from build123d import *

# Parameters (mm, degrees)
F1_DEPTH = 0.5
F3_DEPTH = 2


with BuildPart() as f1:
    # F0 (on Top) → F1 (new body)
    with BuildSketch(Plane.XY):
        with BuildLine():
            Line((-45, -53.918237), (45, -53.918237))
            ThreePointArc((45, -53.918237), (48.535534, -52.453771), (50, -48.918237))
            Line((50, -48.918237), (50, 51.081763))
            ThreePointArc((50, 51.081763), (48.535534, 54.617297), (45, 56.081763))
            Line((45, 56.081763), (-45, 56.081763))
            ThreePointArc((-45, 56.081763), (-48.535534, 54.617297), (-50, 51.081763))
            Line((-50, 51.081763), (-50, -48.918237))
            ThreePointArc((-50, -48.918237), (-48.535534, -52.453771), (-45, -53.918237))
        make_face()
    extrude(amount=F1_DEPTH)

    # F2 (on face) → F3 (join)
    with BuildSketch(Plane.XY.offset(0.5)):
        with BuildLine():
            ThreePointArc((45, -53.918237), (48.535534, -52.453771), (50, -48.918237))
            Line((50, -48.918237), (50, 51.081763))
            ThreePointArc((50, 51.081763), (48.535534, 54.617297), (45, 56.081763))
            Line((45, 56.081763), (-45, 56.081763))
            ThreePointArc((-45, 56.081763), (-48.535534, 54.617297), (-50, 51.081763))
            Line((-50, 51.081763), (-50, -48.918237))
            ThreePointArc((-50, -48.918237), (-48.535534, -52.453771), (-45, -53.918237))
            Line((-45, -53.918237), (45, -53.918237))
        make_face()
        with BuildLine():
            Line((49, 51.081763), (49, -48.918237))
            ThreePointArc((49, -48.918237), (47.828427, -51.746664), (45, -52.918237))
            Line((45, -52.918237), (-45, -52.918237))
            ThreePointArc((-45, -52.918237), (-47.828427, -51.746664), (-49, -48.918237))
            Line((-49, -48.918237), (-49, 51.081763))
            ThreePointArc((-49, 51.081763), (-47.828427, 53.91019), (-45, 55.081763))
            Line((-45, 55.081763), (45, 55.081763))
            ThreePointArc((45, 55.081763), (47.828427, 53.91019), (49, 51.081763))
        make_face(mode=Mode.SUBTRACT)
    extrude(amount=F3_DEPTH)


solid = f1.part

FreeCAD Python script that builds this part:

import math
import FreeCAD as App
import Part
import Sketcher

V = App.Vector
Q = App.Units.Quantity

doc = App.newDocument("Part")
body = doc.addObject("PartDesign::Body", "Body")

# Sketch on XY plane
sketch1 = body.newObject("Sketcher::SketchObject", "Sketch")
sketch1.AttachmentSupport = (doc.getObject("XY_Plane"), [""])
sketch1.MapMode = "FlatFace"
sketch1.addGeometry(Part.LineSegment(V(-45, -53.918237, 0), V(45, -53.918237, 0)), False)
sketch1.addGeometry(Part.ArcOfCircle(Part.Circle(V(45, -48.918237, 0), V(0, 0, 1), 5), math.radians(-90.000004), math.radians(0.000004)), False)
sketch1.addGeometry(Part.LineSegment(V(50, -48.918237, 0), V(50, 51.081763, 0)), False)
sketch1.addGeometry(Part.ArcOfCircle(Part.Circle(V(45, 51.081763, 0), V(0, 0, 1), 5), math.radians(-0.000004), math.radians(90.000004)), False)
sketch1.addGeometry(Part.LineSegment(V(45, 56.081763, 0), V(-45, 56.081763, 0)), False)
sketch1.addGeometry(Part.ArcOfCircle(Part.Circle(V(-45, 51.081763, 0), V(0, 0, 1), 5), math.radians(89.999996), math.radians(180.000004)), False)
sketch1.addGeometry(Part.LineSegment(V(-50, 51.081763, 0), V(-50, -48.918237, 0)), False)
sketch1.addGeometry(Part.ArcOfCircle(Part.Circle(V(-45, -48.918237, 0), V(0, 0, 1), 5), math.radians(179.999996), math.radians(270.000004)), False)
sketch1.addConstraint(Sketcher.Constraint("Tangent", 0, 2, 1, 1))
sketch1.addConstraint(Sketcher.Constraint("Tangent", 1, 2, 2, 1))
sketch1.addConstraint(Sketcher.Constraint("Tangent", 2, 2, 3, 1))
sketch1.addConstraint(Sketcher.Constraint("Tangent", 3, 2, 4, 1))
sketch1.addConstraint(Sketcher.Constraint("Tangent", 4, 2, 5, 1))
sketch1.addConstraint(Sketcher.Constraint("Tangent", 5, 2, 6, 1))
sketch1.addConstraint(Sketcher.Constraint("Tangent", 6, 2, 7, 1))
sketch1.addConstraint(Sketcher.Constraint("Tangent", 7, 2, 0, 1))
sketch1.addConstraint(Sketcher.Constraint("Horizontal", 0))
sketch1.addConstraint(Sketcher.Constraint("Vertical", 2))
sketch1.addConstraint(Sketcher.Constraint("Horizontal", 4))
sketch1.addConstraint(Sketcher.Constraint("Vertical", 6))
sketch1.addConstraint(Sketcher.Constraint("Equal", 1, 3))
sketch1.addConstraint(Sketcher.Constraint("Equal", 3, 5))
sketch1.addConstraint(Sketcher.Constraint("Equal", 5, 7))
sketch1.addConstraint(Sketcher.Constraint("Radius", 1, Q("5 mm")))
sketch1.addConstraint(Sketcher.Constraint("DistanceX", 0, 1, 0, 2, Q("90 mm")))
sketch1.addConstraint(Sketcher.Constraint("DistanceY", 2, 1, 2, 2, Q("100 mm")))
sketch1.addConstraint(Sketcher.Constraint("DistanceX", -1, 1, 1, 3, Q("45 mm")))
sketch1.addConstraint(Sketcher.Constraint("DistanceY", 1, 3, -1, 1, Q("48.918237 mm")))
pad1 = body.newObject("PartDesign::Pad", "Pad")
pad1.Profile = sketch1
pad1.Length = 0.5

# Sketch on XY plane
sketch2 = body.newObject("Sketcher::SketchObject", "Sketch001")
sketch2.AttachmentSupport = (doc.getObject("XY_Plane"), [""])
sketch2.MapMode = "FlatFace"
sketch2.AttachmentOffset = App.Placement(V(0, 0, 0.5), App.Rotation())
sketch2.addGeometry(Part.ArcOfCircle(Part.Circle(V(45, -48.918237, 0), V(0, 0, 1), 5), math.radians(-90.000004), math.radians(0.000004)), False)
sketch2.addGeometry(Part.LineSegment(V(50, -48.918237, 0), V(50, 51.081763, 0)), False)
sketch2.addGeometry(Part.ArcOfCircle(Part.Circle(V(45, 51.081763, 0), V(0, 0, 1), 5), math.radians(-0.000004), math.radians(90.000004)), False)
sketch2.addGeometry(Part.LineSegment(V(45, 56.081763, 0), V(-45, 56.081763, 0)), False)
sketch2.addGeometry(Part.ArcOfCircle(Part.Circle(V(-45, 51.081763, 0), V(0, 0, 1), 5), math.radians(89.999996), math.radians(180.000004)), False)
sketch2.addGeometry(Part.LineSegment(V(-50, 51.081763, 0), V(-50, -48.918237, 0)), False)
sketch2.addGeometry(Part.ArcOfCircle(Part.Circle(V(-45, -48.918237, 0), V(0, 0, 1), 5), math.radians(179.999996), math.radians(270.000004)), False)
sketch2.addGeometry(Part.LineSegment(V(-45, -53.918237, 0), V(45, -53.918237, 0)), False)
sketch2.addGeometry(Part.ArcOfCircle(Part.Circle(V(45, 51.081763, 0), V(0, 0, 1), 4), math.radians(0.000006), math.radians(89.999994)), False)
sketch2.addGeometry(Part.LineSegment(V(49, 51.081763, 0), V(49, -48.918237, 0)), False)
sketch2.addGeometry(Part.ArcOfCircle(Part.Circle(V(45, -48.918237, 0), V(0, 0, 1), 4), math.radians(-89.999994), math.radians(-0.000006)), False)
sketch2.addGeometry(Part.LineSegment(V(45, -52.918237, 0), V(-45, -52.918237, 0)), False)
sketch2.addGeometry(Part.ArcOfCircle(Part.Circle(V(-45, -48.918237, 0), V(0, 0, 1), 4), math.radians(-179.999994), math.radians(-90.000006)), False)
sketch2.addGeometry(Part.LineSegment(V(-49, -48.918237, 0), V(-49, 51.081763, 0)), False)
sketch2.addGeometry(Part.ArcOfCircle(Part.Circle(V(-45, 51.081763, 0), V(0, 0, 1), 4), math.radians(90.000006), math.radians(179.999994)), False)
sketch2.addGeometry(Part.LineSegment(V(-45, 55.081763, 0), V(45, 55.081763, 0)), False)
sketch2.addConstraint(Sketcher.Constraint("Tangent", 0, 2, 1, 1))
sketch2.addConstraint(Sketcher.Constraint("Tangent", 1, 2, 2, 1))
sketch2.addConstraint(Sketcher.Constraint("Tangent", 2, 2, 3, 1))
sketch2.addConstraint(Sketcher.Constraint("Tangent", 3, 2, 4, 1))
sketch2.addConstraint(Sketcher.Constraint("Tangent", 4, 2, 5, 1))
sketch2.addConstraint(Sketcher.Constraint("Tangent", 5, 2, 6, 1))
sketch2.addConstraint(Sketcher.Constraint("Tangent", 6, 2, 7, 1))
sketch2.addConstraint(Sketcher.Constraint("Tangent", 7, 2, 0, 1))
sketch2.addConstraint(Sketcher.Constraint("Tangent", 8, 1, 9, 1))
sketch2.addConstraint(Sketcher.Constraint("Tangent", 9, 2, 10, 2))
sketch2.addConstraint(Sketcher.Constraint("Tangent", 10, 1, 11, 1))
sketch2.addConstraint(Sketcher.Constraint("Tangent", 11, 2, 12, 2))
sketch2.addConstraint(Sketcher.Constraint("Tangent", 12, 1, 13, 1))
sketch2.addConstraint(Sketcher.Constraint("Tangent", 13, 2, 14, 2))
sketch2.addConstraint(Sketcher.Constraint("Tangent", 14, 1, 15, 1))
sketch2.addConstraint(Sketcher.Constraint("Tangent", 15, 2, 8, 2))
sketch2.addConstraint(Sketcher.Constraint("Vertical", 1))
sketch2.addConstraint(Sketcher.Constraint("Horizontal", 3))
sketch2.addConstraint(Sketcher.Constraint("Vertical", 5))
sketch2.addConstraint(Sketcher.Constraint("Horizontal", 7))
sketch2.addConstraint(Sketcher.Constraint("Vertical", 9))
sketch2.addConstraint(Sketcher.Constraint("Horizontal", 11))
sketch2.addConstraint(Sketcher.Constraint("Vertical", 13))
sketch2.addConstraint(Sketcher.Constraint("Horizontal", 15))
sketch2.addConstraint(Sketcher.Constraint("Coincident", 8, 3, 2, 3))
sketch2.addConstraint(Sketcher.Constraint("Coincident", 10, 3, 0, 3))
sketch2.addConstraint(Sketcher.Constraint("Coincident", 12, 3, 6, 3))
sketch2.addConstraint(Sketcher.Constraint("Equal", 0, 2))
sketch2.addConstraint(Sketcher.Constraint("Equal", 2, 4))
sketch2.addConstraint(Sketcher.Constraint("Equal", 4, 6))
sketch2.addConstraint(Sketcher.Constraint("Equal", 12, 14))
sketch2.addConstraint(Sketcher.Constraint("Radius", 0, Q("5 mm")))
sketch2.addConstraint(Sketcher.Constraint("Radius", 8, Q("4 mm")))
sketch2.addConstraint(Sketcher.Constraint("DistanceX", 3, 2, 3, 1, Q("90 mm")))
sketch2.addConstraint(Sketcher.Constraint("DistanceY", 1, 1, 1, 2, Q("100 mm")))
sketch2.addConstraint(Sketcher.Constraint("DistanceX", -1, 1, 0, 3, Q("45 mm")))
sketch2.addConstraint(Sketcher.Constraint("DistanceY", 0, 3, -1, 1, Q("48.918237 mm")))
pad2 = body.newObject("PartDesign::Pad", "Pad001")
pad2.Profile = sketch2
pad2.Length = 2

doc.recompute()
